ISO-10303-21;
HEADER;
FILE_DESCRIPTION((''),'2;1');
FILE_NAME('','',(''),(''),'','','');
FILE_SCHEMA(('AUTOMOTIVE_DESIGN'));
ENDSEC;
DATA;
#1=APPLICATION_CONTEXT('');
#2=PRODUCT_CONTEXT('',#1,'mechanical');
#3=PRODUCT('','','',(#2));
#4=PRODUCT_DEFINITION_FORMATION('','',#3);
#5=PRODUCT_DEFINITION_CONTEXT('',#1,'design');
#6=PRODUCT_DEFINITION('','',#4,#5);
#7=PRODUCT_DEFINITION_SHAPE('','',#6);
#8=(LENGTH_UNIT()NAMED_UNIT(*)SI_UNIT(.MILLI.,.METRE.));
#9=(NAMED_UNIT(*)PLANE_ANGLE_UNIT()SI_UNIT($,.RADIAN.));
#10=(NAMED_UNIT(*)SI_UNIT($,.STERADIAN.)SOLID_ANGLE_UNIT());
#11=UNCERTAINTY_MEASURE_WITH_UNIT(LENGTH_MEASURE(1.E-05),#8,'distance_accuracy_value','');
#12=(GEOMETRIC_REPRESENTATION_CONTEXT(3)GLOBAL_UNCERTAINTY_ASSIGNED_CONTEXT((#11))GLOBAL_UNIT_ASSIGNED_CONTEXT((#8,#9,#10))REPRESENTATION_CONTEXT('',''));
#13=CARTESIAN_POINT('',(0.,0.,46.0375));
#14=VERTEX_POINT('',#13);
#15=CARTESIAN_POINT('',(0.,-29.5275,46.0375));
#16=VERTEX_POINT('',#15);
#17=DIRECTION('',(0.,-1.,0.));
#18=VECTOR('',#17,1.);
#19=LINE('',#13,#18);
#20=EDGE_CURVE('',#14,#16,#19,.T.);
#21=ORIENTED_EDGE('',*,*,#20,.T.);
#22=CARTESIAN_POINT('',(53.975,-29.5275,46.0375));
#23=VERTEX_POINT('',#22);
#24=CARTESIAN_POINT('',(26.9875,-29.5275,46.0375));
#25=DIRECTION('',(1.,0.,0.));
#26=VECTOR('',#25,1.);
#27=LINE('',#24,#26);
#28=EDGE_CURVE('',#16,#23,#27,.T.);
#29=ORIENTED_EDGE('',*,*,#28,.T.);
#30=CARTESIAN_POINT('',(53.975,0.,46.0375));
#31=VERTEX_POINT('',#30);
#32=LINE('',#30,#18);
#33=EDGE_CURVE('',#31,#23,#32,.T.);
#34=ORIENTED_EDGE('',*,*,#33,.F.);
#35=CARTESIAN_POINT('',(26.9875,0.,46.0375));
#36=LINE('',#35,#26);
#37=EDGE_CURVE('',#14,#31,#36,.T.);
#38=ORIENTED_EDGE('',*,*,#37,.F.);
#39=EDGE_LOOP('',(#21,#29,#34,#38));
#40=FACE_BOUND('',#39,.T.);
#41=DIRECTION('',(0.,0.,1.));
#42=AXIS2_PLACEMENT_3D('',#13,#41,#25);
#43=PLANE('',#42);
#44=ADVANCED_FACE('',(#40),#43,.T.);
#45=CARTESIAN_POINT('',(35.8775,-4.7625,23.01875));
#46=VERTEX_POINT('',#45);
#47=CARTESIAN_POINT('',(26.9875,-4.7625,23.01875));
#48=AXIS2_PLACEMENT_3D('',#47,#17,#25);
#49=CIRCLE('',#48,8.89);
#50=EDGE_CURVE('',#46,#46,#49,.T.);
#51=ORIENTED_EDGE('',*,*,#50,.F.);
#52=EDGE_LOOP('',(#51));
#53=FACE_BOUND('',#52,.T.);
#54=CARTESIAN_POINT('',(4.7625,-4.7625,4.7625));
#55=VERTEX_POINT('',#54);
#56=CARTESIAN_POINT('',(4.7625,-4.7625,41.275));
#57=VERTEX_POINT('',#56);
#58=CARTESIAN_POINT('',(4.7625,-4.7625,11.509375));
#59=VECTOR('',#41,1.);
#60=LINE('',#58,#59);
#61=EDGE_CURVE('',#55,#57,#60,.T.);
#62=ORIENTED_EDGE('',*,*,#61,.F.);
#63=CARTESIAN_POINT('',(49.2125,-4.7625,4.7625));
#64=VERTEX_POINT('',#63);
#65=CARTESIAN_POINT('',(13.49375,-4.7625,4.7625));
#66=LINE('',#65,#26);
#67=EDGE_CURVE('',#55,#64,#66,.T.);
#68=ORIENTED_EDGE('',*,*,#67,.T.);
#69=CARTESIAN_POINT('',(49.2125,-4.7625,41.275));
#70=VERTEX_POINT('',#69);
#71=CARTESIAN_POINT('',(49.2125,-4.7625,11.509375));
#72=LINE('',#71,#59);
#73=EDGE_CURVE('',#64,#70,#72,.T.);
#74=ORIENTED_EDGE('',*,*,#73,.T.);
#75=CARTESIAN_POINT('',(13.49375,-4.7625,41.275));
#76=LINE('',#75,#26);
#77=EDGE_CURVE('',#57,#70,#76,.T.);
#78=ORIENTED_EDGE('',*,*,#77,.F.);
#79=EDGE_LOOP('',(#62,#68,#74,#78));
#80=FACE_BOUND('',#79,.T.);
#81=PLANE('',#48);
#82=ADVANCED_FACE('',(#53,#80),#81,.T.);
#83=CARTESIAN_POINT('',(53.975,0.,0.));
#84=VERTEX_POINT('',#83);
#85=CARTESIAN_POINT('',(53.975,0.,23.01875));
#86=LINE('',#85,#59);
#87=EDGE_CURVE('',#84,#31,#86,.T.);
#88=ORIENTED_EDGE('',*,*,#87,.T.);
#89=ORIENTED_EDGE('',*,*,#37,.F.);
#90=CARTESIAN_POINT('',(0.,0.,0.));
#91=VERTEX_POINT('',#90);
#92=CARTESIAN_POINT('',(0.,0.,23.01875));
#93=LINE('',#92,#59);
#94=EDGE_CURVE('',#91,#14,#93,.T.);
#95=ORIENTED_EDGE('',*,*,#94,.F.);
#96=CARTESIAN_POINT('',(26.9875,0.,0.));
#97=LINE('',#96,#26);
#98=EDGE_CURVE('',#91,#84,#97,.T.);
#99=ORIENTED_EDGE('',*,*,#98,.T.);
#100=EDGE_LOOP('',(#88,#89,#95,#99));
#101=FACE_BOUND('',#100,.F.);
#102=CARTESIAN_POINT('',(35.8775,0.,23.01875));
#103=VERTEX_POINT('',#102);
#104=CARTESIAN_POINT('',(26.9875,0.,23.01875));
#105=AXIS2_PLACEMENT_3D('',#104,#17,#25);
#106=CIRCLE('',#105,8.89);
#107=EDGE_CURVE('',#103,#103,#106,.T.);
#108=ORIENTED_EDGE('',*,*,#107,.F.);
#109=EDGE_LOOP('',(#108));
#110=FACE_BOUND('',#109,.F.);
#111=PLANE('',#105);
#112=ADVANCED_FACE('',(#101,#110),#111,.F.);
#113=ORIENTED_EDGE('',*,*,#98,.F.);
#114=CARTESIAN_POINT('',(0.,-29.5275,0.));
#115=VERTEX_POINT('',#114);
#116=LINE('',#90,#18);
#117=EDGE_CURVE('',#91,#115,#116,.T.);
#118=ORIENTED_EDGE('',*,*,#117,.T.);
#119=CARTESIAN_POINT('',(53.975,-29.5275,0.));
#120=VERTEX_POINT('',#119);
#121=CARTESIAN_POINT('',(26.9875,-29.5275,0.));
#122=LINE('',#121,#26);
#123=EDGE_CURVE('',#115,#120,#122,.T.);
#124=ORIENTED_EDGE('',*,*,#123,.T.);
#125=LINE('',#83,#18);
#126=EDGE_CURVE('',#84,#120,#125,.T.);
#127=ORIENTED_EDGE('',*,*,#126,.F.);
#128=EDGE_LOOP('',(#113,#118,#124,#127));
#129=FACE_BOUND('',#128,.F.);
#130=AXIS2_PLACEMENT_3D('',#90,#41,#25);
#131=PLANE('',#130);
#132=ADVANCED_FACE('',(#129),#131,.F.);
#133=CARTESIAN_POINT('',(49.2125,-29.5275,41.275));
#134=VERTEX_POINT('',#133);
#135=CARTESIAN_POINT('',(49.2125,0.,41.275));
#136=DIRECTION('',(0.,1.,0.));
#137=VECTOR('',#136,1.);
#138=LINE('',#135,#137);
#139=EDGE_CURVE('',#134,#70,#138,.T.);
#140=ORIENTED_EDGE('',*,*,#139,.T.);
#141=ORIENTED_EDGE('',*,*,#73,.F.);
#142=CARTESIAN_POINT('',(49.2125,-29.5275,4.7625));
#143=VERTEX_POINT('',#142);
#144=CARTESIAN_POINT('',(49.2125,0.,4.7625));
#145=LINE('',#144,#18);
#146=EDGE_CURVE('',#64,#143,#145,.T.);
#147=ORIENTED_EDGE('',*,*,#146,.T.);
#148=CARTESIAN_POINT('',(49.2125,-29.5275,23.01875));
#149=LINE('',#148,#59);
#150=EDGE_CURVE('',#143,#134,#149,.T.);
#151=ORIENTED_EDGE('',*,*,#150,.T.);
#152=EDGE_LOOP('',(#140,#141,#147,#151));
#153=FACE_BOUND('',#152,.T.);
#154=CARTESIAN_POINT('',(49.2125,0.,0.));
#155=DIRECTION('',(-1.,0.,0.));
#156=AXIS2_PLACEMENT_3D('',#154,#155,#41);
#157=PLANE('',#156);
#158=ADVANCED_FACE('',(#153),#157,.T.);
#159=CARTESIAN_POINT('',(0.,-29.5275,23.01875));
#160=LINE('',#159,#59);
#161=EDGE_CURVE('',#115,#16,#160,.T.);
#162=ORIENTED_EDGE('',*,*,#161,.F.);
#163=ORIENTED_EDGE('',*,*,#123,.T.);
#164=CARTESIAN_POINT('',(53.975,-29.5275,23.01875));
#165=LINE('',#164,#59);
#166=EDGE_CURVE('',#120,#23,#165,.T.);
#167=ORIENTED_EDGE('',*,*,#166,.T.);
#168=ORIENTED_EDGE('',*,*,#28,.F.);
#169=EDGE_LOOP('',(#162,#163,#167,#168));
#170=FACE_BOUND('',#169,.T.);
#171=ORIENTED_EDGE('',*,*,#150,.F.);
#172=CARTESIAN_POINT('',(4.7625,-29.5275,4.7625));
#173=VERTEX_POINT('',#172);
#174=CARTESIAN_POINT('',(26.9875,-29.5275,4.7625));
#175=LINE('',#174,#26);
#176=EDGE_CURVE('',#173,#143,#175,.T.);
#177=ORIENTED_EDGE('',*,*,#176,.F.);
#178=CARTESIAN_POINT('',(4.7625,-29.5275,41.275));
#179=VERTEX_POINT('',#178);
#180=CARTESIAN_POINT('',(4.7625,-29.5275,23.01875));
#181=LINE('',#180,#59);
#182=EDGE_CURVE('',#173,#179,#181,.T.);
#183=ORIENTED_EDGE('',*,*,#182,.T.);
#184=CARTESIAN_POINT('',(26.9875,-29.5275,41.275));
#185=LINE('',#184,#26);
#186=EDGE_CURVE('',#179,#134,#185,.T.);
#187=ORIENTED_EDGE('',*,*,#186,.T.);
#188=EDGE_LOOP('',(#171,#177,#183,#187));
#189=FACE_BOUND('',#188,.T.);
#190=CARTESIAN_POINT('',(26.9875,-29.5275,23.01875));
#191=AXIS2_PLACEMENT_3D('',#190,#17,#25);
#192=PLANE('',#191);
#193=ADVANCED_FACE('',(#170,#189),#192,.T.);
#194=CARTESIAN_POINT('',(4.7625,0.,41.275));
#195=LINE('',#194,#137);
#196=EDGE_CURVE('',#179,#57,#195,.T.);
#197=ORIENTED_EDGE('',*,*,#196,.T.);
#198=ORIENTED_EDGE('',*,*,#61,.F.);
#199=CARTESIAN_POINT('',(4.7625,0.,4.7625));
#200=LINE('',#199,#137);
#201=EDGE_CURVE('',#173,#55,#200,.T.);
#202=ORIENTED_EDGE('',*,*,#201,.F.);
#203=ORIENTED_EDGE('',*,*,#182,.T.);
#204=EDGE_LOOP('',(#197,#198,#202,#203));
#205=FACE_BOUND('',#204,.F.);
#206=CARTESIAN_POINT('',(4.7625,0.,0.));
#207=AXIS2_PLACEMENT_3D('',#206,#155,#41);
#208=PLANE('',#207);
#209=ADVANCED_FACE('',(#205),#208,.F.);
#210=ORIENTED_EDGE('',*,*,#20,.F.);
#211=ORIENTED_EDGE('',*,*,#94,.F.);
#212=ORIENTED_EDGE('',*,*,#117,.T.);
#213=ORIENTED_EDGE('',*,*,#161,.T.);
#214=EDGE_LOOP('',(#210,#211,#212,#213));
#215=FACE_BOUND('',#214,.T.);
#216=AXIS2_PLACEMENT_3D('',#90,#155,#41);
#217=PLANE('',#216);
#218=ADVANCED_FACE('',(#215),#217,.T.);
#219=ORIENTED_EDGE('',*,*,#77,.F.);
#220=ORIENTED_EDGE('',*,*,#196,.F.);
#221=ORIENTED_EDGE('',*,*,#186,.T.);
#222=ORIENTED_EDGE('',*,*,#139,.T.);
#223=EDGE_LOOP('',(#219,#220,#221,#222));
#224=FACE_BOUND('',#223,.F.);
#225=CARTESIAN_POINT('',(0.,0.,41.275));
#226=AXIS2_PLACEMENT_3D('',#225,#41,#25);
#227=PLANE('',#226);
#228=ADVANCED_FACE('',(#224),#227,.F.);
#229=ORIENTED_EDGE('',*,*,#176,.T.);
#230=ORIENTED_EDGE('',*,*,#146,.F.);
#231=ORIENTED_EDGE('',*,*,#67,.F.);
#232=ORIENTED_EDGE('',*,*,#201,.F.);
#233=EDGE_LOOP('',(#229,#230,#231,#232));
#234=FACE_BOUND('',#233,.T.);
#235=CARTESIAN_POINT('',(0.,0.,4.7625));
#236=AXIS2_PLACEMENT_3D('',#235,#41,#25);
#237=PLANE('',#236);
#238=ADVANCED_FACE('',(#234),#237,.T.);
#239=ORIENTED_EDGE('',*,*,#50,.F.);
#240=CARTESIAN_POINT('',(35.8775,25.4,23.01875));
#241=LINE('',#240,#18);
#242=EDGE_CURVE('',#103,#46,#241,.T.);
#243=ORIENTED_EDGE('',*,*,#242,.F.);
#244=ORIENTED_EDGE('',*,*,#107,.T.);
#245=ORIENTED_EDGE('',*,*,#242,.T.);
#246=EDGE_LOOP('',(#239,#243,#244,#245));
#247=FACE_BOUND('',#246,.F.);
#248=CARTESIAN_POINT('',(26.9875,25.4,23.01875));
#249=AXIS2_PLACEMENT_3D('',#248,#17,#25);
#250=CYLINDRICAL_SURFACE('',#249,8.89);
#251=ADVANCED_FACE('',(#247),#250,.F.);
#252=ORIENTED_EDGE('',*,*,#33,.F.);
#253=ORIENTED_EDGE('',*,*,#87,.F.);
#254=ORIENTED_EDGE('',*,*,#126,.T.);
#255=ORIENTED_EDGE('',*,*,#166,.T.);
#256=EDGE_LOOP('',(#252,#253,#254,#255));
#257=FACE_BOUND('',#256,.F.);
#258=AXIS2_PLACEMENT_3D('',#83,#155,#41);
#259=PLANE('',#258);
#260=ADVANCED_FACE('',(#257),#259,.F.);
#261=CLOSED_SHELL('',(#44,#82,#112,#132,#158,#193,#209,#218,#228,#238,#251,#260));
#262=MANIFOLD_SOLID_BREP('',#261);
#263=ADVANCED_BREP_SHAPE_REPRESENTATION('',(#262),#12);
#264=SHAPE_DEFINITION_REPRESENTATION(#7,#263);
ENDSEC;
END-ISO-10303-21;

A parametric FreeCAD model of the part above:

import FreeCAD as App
import Part
import Sketcher
from FreeCAD import Vector
Q = App.Units.Quantity


def faces_at(feature, points):
    """Names of the faces that lie closest to the given points."""
    faces = feature.Shape.Faces
    near = lambda p: min(range(len(faces)), key=lambda i: faces[i].distToShape(Part.Vertex(*p))[0])
    return sorted({f"Face{near(p) + 1}" for p in points})


def add_polygon(sketch, points):
    """Adds a closed chain of lines whose ends are joined by coincident constraints."""
    first, n = sketch.GeometryCount, len(points)
    for a, b in zip(points, points[1:] + points[:1]):
        sketch.addGeometry(Part.LineSegment(App.Vector(*a, 0), App.Vector(*b, 0)), False)
    for i in range(n):
        sketch.addConstraint(Sketcher.Constraint("Coincident", first + i, 2, first + (i + 1) % n, 1))

doc = App.newDocument("Part")
params = doc.addObject("Spreadsheet::Sheet", "Params")
for row, (alias, value) in enumerate([
    ("sketch1_width", "2.125 in"),
    ("sketch1_height", "1.8125 in"),
    ("pad1_length", "1.1625 in"),
    ("thickness_wall", "0.1875 in"),
    ("sketch2_diameter", "0.7 in"),
    ("hole_diameter", "0.7 in"),
    ("hole_depth", "1 in"),
], start=1):
    params.set(f"A{row}", alias)
    params.set(f"B{row}", "=" + value)
    params.setAlias(f"B{row}", alias)

body = doc.addObject("PartDesign::Body", "Body")

sketch1 = body.newObject("Sketcher::SketchObject", "Sketch")
sketch1.AttachmentSupport = (doc.getObject("XZ_Plane"), [""])
sketch1.MapMode = "FlatFace"
add_polygon(sketch1, [(0, 46), (0, 0), (54, 0), (54, 46)])
sketch1.addConstraint([
    Sketcher.Constraint("Vertical", 0),
    Sketcher.Constraint("Horizontal", 1),
    Sketcher.Constraint("Vertical", 2),
    Sketcher.Constraint("Horizontal", 3),
    Sketcher.Constraint("Coincident", 0, 2, -1, 1),
    Sketcher.Constraint("DistanceX", 1, 1, 1, 2, Q("2.125 in")),
    Sketcher.Constraint("DistanceY", 0, 2, 0, 1, Q("1.8125 in")),
])
sketch1.setExpression("Constraints[9]", "Params.sketch1_width")
sketch1.setExpression("Constraints[10]", "Params.sketch1_height")
pad1 = body.newObject("PartDesign::Pad", "Pad")
pad1.Profile = sketch1
pad1.setExpression("Length", "Params.pad1_length")
doc.recompute()

thickness = body.newObject("PartDesign::Thickness", "Thickness")
thickness.Base = (pad1, faces_at(pad1, [(26.988, -29.527, 23.019)]))
thickness.setExpression("Value", "Params.thickness_wall")
thickness.Reversed = True
thickness.Join = "Arc"

sketch2 = body.newObject("Sketcher::SketchObject", "Sketch001")
sketch2.AttachmentSupport = (doc.getObject("XZ_Plane"), [""])
sketch2.MapMode = "FlatFace"
sketch2.addGeometry(Part.Circle(Vector(27, 23, 0), Vector(0, 0, 1), 9), False)
sketch2.addConstraint([
    Sketcher.Constraint("Diameter", 0, Q("0.7 in")),
    Sketcher.Constraint("DistanceX", -1, 1, 0, 3, Q("1.0625 in")),
    Sketcher.Constraint("DistanceY", -1, 1, 0, 3, Q("0.90625 in")),
])
sketch2.setExpression("Constraints[0]", "Params.sketch2_diameter")
doc.recompute()
hole = body.newObject("PartDesign::Hole", "Hole")
hole.Profile = sketch2
hole.ThreadType = "None"
hole.setExpression("Diameter", "Params.hole_diameter")
hole.DepthType = "Dimension"
hole.setExpression("Depth", "Params.hole_depth")
hole.DrillPoint = "Flat"
hole.Reversed = True

doc.recompute()
